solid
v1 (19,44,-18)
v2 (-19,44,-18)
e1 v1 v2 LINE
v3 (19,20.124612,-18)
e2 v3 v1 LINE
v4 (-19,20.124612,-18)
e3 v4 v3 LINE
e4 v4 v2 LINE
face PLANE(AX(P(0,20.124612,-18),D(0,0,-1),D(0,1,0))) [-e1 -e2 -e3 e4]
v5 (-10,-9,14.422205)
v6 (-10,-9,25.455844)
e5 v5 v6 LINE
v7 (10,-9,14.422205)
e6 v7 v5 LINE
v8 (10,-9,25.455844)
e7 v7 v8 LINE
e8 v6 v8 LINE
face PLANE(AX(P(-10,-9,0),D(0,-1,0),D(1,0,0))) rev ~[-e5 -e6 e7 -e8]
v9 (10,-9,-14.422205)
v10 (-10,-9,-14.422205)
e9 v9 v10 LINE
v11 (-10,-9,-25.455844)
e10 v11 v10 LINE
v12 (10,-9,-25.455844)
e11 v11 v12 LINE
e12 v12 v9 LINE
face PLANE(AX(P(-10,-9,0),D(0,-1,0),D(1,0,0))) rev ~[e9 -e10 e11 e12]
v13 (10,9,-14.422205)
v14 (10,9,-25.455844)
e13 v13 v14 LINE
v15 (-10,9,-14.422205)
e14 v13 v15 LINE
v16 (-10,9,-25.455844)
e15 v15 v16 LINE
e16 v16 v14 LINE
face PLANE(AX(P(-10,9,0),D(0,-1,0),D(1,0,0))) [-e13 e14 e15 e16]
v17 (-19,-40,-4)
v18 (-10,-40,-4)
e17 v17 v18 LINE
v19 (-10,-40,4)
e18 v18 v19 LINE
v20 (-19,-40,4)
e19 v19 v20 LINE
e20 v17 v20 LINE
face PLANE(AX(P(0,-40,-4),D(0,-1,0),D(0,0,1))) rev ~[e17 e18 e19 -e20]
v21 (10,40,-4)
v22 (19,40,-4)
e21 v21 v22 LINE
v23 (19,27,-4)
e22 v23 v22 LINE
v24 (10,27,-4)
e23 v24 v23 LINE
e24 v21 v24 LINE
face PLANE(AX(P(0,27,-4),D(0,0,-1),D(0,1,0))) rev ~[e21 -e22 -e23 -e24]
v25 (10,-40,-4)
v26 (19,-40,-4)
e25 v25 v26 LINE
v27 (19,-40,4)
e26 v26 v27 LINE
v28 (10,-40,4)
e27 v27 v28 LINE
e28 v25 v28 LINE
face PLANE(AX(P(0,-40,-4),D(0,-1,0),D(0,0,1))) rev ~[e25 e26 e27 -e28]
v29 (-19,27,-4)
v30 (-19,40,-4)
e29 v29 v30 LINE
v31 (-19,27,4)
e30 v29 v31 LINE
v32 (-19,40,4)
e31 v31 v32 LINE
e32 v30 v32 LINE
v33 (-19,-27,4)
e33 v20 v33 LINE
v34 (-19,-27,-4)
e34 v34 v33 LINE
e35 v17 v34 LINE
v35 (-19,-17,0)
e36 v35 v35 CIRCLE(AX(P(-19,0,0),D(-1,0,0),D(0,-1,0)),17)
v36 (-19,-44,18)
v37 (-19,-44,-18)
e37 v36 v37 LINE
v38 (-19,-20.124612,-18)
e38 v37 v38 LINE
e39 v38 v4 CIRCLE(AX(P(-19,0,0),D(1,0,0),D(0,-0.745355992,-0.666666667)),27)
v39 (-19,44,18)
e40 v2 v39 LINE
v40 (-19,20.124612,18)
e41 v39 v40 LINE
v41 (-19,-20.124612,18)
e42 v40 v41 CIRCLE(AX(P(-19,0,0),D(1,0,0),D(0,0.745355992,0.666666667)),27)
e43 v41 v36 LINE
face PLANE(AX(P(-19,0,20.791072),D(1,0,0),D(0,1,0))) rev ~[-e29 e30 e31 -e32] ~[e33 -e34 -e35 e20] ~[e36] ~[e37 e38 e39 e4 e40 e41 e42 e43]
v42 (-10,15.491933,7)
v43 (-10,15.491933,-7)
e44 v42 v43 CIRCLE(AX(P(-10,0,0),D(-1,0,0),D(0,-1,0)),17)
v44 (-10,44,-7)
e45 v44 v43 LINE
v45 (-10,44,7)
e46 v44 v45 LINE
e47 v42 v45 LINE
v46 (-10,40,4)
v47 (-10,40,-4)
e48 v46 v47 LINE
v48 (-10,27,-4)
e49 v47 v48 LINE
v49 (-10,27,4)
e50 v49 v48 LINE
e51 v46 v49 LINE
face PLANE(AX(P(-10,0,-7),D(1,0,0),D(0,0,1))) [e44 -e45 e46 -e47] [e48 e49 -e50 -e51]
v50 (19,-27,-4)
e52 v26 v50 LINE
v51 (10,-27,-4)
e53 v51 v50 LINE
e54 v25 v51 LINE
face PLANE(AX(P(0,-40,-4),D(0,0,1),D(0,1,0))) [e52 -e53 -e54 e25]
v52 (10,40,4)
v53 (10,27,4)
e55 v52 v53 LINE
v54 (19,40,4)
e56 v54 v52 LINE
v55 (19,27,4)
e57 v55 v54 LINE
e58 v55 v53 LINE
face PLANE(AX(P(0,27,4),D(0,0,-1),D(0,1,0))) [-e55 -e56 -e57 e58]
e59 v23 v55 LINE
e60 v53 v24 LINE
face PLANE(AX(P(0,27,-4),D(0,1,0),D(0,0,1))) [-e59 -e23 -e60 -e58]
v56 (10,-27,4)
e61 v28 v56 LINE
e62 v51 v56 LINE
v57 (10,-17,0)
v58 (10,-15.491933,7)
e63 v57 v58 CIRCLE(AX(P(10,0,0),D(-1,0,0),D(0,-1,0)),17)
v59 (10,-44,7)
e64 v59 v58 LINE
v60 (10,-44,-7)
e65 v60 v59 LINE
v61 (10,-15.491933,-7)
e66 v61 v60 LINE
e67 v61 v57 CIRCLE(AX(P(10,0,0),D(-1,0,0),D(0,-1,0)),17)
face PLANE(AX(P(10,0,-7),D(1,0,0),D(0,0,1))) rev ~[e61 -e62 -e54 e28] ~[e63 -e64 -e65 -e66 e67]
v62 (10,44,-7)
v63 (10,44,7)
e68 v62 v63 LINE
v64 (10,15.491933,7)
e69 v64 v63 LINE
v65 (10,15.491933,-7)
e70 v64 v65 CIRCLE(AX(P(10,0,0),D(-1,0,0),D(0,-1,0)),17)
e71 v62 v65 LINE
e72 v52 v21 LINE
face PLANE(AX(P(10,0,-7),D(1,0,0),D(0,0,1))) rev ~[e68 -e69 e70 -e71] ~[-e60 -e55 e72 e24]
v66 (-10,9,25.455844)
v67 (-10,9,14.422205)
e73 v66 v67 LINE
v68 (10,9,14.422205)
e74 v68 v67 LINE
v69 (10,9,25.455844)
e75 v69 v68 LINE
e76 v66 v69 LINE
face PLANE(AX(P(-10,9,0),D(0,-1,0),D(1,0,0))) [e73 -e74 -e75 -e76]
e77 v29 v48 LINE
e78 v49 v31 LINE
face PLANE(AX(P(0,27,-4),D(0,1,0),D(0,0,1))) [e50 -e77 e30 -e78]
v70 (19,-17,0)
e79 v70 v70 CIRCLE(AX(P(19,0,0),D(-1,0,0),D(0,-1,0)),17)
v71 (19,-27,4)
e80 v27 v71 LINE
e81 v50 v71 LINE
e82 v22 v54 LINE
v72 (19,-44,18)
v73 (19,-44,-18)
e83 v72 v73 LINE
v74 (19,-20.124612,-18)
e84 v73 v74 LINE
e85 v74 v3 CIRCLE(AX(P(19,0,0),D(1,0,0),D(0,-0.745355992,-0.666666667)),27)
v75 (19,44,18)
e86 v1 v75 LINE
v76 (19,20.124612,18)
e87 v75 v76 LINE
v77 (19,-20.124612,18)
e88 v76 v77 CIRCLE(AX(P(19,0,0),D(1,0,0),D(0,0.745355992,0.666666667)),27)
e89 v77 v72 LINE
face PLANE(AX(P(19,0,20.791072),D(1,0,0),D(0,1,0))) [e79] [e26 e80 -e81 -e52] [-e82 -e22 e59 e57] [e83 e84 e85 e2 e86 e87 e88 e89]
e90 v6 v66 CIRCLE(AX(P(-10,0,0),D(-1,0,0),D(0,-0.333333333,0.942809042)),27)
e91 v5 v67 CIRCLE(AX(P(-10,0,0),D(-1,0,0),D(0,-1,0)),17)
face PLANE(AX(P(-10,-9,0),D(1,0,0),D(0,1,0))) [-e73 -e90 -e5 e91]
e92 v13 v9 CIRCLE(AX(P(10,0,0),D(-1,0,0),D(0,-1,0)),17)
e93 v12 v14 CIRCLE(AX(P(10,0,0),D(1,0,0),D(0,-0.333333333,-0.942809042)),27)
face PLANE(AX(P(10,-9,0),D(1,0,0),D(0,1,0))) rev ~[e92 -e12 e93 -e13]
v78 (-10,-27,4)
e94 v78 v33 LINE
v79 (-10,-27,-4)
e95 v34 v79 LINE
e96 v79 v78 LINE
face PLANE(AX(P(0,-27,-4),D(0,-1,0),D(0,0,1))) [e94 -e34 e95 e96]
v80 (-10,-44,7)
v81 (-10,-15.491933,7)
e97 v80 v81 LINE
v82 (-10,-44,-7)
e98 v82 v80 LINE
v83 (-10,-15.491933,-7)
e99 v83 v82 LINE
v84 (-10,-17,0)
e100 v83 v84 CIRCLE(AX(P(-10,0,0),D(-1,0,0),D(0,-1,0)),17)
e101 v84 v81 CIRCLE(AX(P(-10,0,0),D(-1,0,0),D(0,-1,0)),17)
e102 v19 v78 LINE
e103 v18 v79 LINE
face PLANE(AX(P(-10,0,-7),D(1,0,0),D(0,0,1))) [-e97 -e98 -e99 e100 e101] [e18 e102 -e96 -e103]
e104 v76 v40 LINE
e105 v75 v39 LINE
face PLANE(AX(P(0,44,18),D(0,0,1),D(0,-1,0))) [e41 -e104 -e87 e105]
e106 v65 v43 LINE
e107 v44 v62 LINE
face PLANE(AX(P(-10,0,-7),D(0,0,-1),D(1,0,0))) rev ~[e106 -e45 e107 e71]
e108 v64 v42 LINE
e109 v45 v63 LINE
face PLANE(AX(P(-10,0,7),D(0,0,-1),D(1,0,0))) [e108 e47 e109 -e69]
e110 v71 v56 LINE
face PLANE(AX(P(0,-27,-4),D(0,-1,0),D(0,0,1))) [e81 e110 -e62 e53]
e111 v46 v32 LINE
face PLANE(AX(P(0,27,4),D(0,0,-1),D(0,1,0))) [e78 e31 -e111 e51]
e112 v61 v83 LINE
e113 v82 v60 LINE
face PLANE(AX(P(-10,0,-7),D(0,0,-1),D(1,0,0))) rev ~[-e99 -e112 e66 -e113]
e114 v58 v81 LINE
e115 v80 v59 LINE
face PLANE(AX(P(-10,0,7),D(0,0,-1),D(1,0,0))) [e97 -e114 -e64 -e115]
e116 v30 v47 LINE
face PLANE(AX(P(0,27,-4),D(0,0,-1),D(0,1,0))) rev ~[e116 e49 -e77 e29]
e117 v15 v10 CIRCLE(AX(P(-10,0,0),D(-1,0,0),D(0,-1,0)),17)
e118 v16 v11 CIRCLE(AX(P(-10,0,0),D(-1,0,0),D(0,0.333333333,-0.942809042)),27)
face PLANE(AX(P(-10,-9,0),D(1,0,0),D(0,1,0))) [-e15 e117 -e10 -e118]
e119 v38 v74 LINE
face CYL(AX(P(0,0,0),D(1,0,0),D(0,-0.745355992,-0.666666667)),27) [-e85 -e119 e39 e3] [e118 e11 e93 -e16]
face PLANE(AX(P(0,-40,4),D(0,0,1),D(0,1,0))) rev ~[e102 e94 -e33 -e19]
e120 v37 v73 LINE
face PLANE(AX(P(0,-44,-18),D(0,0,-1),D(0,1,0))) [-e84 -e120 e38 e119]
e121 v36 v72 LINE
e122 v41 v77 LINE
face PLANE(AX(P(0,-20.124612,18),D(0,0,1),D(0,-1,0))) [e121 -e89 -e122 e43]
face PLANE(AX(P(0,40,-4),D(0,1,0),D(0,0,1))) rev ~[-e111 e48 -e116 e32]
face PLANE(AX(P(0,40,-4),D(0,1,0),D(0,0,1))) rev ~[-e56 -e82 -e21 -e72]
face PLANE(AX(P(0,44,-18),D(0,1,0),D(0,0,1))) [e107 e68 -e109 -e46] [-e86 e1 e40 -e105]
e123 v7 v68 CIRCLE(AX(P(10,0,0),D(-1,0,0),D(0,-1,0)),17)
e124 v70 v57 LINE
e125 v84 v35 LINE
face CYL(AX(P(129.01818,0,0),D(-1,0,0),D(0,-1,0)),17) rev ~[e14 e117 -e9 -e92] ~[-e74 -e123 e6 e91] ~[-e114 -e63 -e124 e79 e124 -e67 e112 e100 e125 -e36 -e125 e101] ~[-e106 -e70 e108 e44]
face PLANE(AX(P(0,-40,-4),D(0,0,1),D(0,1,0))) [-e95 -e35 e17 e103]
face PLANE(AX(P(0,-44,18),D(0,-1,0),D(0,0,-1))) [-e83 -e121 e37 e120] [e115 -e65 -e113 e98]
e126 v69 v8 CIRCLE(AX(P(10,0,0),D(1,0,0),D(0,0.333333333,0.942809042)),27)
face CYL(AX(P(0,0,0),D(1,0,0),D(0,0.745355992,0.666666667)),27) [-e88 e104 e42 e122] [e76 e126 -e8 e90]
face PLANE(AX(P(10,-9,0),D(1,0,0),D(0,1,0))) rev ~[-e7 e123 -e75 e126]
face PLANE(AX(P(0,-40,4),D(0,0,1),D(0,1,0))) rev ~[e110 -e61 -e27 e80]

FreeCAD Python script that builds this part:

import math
import FreeCAD as App
import Part
import Sketcher
Q = App.Units.Quantity

doc = App.newDocument("Part")
body = doc.addObject("PartDesign::Body", "Body")

sketch1 = body.newObject("Sketcher::SketchObject", "Sketch")
sketch1.AttachmentSupport = (doc.getObject("YZ_Plane"), [""])
sketch1.MapMode = "FlatFace"
sketch1.addGeometry(Part.ArcOfCircle(Part.Circle(App.Vector(0, 0, 0), App.Vector(0, 0, 1), 27), math.radians(42), math.radians(138)), False)
sketch1.addGeometry(Part.LineSegment(App.Vector(-20, 18, 0), App.Vector(-44, 18, 0)), False)
sketch1.addGeometry(Part.LineSegment(App.Vector(-44, 18, 0), App.Vector(-44, -18, 0)), False)
sketch1.addGeometry(Part.LineSegment(App.Vector(-44, -18, 0), App.Vector(-20, -18, 0)), False)
sketch1.addGeometry(Part.ArcOfCircle(Part.Circle(App.Vector(0, 0, 0), App.Vector(0, 0, 1), 27), math.radians(-138), math.radians(-42)), False)
sketch1.addGeometry(Part.LineSegment(App.Vector(20, -18, 0), App.Vector(44, -18, 0)), False)
sketch1.addGeometry(Part.LineSegment(App.Vector(44, -18, 0), App.Vector(44, 18, 0)), False)
sketch1.addGeometry(Part.LineSegment(App.Vector(44, 18, 0), App.Vector(20, 18, 0)), False)
sketch1.addConstraint(Sketcher.Constraint("Coincident", 0, 2, 1, 1))
sketch1.addConstraint(Sketcher.Constraint("Coincident", 1, 2, 2, 1))
sketch1.addConstraint(Sketcher.Constraint("Coincident", 2, 2, 3, 1))
sketch1.addConstraint(Sketcher.Constraint("Coincident", 3, 2, 4, 1))
sketch1.addConstraint(Sketcher.Constraint("Coincident", 4, 2, 5, 1))
sketch1.addConstraint(Sketcher.Constraint("Coincident", 5, 2, 6, 1))
sketch1.addConstraint(Sketcher.Constraint("Coincident", 6, 2, 7, 1))
sketch1.addConstraint(Sketcher.Constraint("Coincident", 7, 2, 0, 1))
sketch1.addConstraint(Sketcher.Constraint("Horizontal", 1))
sketch1.addConstraint(Sketcher.Constraint("Vertical", 2))
sketch1.addConstraint(Sketcher.Constraint("Horizontal", 3))
sketch1.addConstraint(Sketcher.Constraint("Horizontal", 5))
sketch1.addConstraint(Sketcher.Constraint("Vertical", 6))
sketch1.addConstraint(Sketcher.Constraint("Horizontal", 7))
sketch1.addConstraint(Sketcher.Constraint("Coincident", 0, 3, -1, 1))
sketch1.addConstraint(Sketcher.Constraint("Coincident", 4, 3, -1, 1))
sketch1.addConstraint(Sketcher.Constraint("Equal", 0, 4))
sketch1.addConstraint(Sketcher.Constraint("Symmetric", 1, 2, 5, 2, -1, 1))
sketch1.addConstraint(Sketcher.Constraint("Horizontal", 3, 2, 4, 2))
sketch1.addConstraint(Sketcher.Constraint("Horizontal", 1, 2, 6, 2))
sketch1.addConstraint(Sketcher.Constraint("Radius", 0, Q("27 mm")))
sketch1.addConstraint(Sketcher.Constraint("DistanceY", 2, 2, 2, 1, Q("36 mm")))
sketch1.addConstraint(Sketcher.Constraint("DistanceX", 1, 2, -1, 1, Q("44 mm")))
pad1 = body.newObject("PartDesign::Pad", "Pad")
pad1.Profile = sketch1
pad1.Length = 38
pad1.Midplane = True

sketch2 = body.newObject("Sketcher::SketchObject", "Sketch001")
sketch2.AttachmentSupport = (doc.getObject("YZ_Plane"), [""])
sketch2.MapMode = "FlatFace"
sketch2.AttachmentOffset = App.Placement(App.Vector(0, 0, 19), App.Rotation())
sketch2.addGeometry(Part.Circle(App.Vector(0, 0, 0), App.Vector(0, 0, 1), 17), False)
sketch2.addConstraint(Sketcher.Constraint("Coincident", 0, 3, -1, 1))
sketch2.addConstraint(Sketcher.Constraint("Diameter", 0, Q("34 mm")))
doc.recompute()
hole = body.newObject("PartDesign::Hole", "Hole")
hole.Profile = sketch2
hole.ThreadType = "None"
hole.Diameter = 34
hole.DepthType = "ThroughAll"

sketch3 = body.newObject("Sketcher::SketchObject", "Sketch002")
sketch3.AttachmentSupport = (doc.getObject("XY_Plane"), [""])
sketch3.MapMode = "FlatFace"
sketch3.addGeometry(Part.LineSegment(App.Vector(-10, 9, 0), App.Vector(-10, -9, 0)), False)
sketch3.addGeometry(Part.LineSegment(App.Vector(-10, -9, 0), App.Vector(10, -9, 0)), False)
sketch3.addGeometry(Part.LineSegment(App.Vector(10, -9, 0), App.Vector(10, 9, 0)), False)
sketch3.addGeometry(Part.LineSegment(App.Vector(10, 9, 0), App.Vector(-10, 9, 0)), False)
sketch3.addConstraint(Sketcher.Constraint("Coincident", 0, 2, 1, 1))
sketch3.addConstraint(Sketcher.Constraint("Coincident", 1, 2, 2, 1))
sketch3.addConstraint(Sketcher.Constraint("Coincident", 2, 2, 3, 1))
sketch3.addConstraint(Sketcher.Constraint("Coincident", 3, 2, 0, 1))
sketch3.addConstraint(Sketcher.Constraint("Vertical", 0))
sketch3.addConstraint(Sketcher.Constraint("Horizontal", 1))
sketch3.addConstraint(Sketcher.Constraint("Vertical", 2))
sketch3.addConstraint(Sketcher.Constraint("Horizontal", 3))
sketch3.addConstraint(Sketcher.Constraint("Symmetric", 0, 2, 2, 2, -1, 1))
sketch3.addConstraint(Sketcher.Constraint("DistanceX", 1, 1, 1, 2, Q("20 mm")))
sketch3.addConstraint(Sketcher.Constraint("DistanceY", 0, 2, 0, 1, Q("18 mm")))
pocket1 = body.newObject("PartDesign::Pocket", "Pocket")
pocket1.Profile = sketch3
pocket1.Length = 54
pocket1.Midplane = True

sketch4 = body.newObject("Sketcher::SketchObject", "Sketch003")
sketch4.AttachmentSupport = (doc.getObject("YZ_Plane"), [""])
sketch4.MapMode = "FlatFace"
sketch4.addGeometry(Part.LineSegment(App.Vector(-40, 4, 0), App.Vector(-40, -4, 0)), False)
sketch4.addGeometry(Part.LineSegment(App.Vector(-40, -4, 0), App.Vector(-27, -4, 0)), False)
sketch4.addGeometry(Part.LineSegment(App.Vector(-27, -4, 0), App.Vector(-27, 4, 0)), False)
sketch4.addGeometry(Part.LineSegment(App.Vector(-27, 4, 0), App.Vector(-40, 4, 0)), False)
sketch4.addGeometry(Part.LineSegment(App.Vector(27, 4, 0), App.Vector(27, -4, 0)), False)
sketch4.addGeometry(Part.LineSegment(App.Vector(27, -4, 0), App.Vector(40, -4, 0)), False)
sketch4.addGeometry(Part.LineSegment(App.Vector(40, -4, 0), App.Vector(40, 4, 0)), False)
sketch4.addGeometry(Part.LineSegment(App.Vector(40, 4, 0), App.Vector(27, 4, 0)), False)
sketch4.addConstraint(Sketcher.Constraint("Coincident", 0, 2, 1, 1))
sketch4.addConstraint(Sketcher.Constraint("Coincident", 1, 2, 2, 1))
sketch4.addConstraint(Sketcher.Constraint("Coincident", 2, 2, 3, 1))
sketch4.addConstraint(Sketcher.Constraint("Coincident", 3, 2, 0, 1))
sketch4.addConstraint(Sketcher.Constraint("Coincident", 4, 2, 5, 1))
sketch4.addConstraint(Sketcher.Constraint("Coincident", 5, 2, 6, 1))
sketch4.addConstraint(Sketcher.Constraint("Coincident", 6, 2, 7, 1))
sketch4.addConstraint(Sketcher.Constraint("Coincident", 7, 2, 4, 1))
sketch4.addConstraint(Sketcher.Constraint("Vertical", 0))
sketch4.addConstraint(Sketcher.Constraint("Horizontal", 1))
sketch4.addConstraint(Sketcher.Constraint("Vertical", 2))
sketch4.addConstraint(Sketcher.Constraint("Horizontal", 3))
sketch4.addConstraint(Sketcher.Constraint("Vertical", 4))
sketch4.addConstraint(Sketcher.Constraint("Horizontal", 5))
sketch4.addConstraint(Sketcher.Constraint("Vertical", 6))
sketch4.addConstraint(Sketcher.Constraint("Horizontal", 7))
sketch4.addConstraint(Sketcher.Constraint("Symmetric", 2, 2, 4, 2, -1, 1))
sketch4.addConstraint(Sketcher.Constraint("Symmetric", 0, 2, 6, 2, -1, 1))
sketch4.addConstraint(Sketcher.Constraint("Horizontal", 1, 2, 4, 2))
sketch4.addConstraint(Sketcher.Constraint("DistanceX", 1, 1, 1, 2, Q("13 mm")))
sketch4.addConstraint(Sketcher.Constraint("DistanceY", 0, 2, 0, 1, Q("8 mm")))
sketch4.addConstraint(Sketcher.Constraint("DistanceX", 0, 2, -1, 1, Q("40 mm")))
pocket2 = body.newObject("PartDesign::Pocket", "Pocket001")
pocket2.Profile = sketch4
pocket2.Length = 38
pocket2.Midplane = True

sketch5 = body.newObject("Sketcher::SketchObject", "Sketch004")
sketch5.AttachmentSupport = (doc.getObject("XZ_Plane"), [""])
sketch5.MapMode = "FlatFace"
sketch5.addGeometry(Part.LineSegment(App.Vector(-10, 7, 0), App.Vector(-10, -7, 0)), False)
sketch5.addGeometry(Part.LineSegment(App.Vector(-10, -7, 0), App.Vector(10, -7, 0)), False)
sketch5.addGeometry(Part.LineSegment(App.Vector(10, -7, 0), App.Vector(10, 7, 0)), False)
sketch5.addGeometry(Part.LineSegment(App.Vector(10, 7, 0), App.Vector(-10, 7, 0)), False)
sketch5.addConstraint(Sketcher.Constraint("Coincident", 0, 2, 1, 1))
sketch5.addConstraint(Sketcher.Constraint("Coincident", 1, 2, 2, 1))
sketch5.addConstraint(Sketcher.Constraint("Coincident", 2, 2, 3, 1))
sketch5.addConstraint(Sketcher.Constraint("Coincident", 3, 2, 0, 1))
sketch5.addConstraint(Sketcher.Constraint("Vertical", 0))
sketch5.addConstraint(Sketcher.Constraint("Horizontal", 1))
sketch5.addConstraint(Sketcher.Constraint("Vertical", 2))
sketch5.addConstraint(Sketcher.Constraint("Horizontal", 3))
sketch5.addConstraint(Sketcher.Constraint("Symmetric", 0, 2, 2, 2, -1, 1))
sketch5.addConstraint(Sketcher.Constraint("DistanceX", 1, 1, 1, 2, Q("20 mm")))
sketch5.addConstraint(Sketcher.Constraint("DistanceY", 0, 2, 0, 1, Q("14 mm")))
pocket3 = body.newObject("PartDesign::Pocket", "Pocket002")
pocket3.Profile = sketch5
pocket3.Length = 88
pocket3.Midplane = True

doc.recompute()
